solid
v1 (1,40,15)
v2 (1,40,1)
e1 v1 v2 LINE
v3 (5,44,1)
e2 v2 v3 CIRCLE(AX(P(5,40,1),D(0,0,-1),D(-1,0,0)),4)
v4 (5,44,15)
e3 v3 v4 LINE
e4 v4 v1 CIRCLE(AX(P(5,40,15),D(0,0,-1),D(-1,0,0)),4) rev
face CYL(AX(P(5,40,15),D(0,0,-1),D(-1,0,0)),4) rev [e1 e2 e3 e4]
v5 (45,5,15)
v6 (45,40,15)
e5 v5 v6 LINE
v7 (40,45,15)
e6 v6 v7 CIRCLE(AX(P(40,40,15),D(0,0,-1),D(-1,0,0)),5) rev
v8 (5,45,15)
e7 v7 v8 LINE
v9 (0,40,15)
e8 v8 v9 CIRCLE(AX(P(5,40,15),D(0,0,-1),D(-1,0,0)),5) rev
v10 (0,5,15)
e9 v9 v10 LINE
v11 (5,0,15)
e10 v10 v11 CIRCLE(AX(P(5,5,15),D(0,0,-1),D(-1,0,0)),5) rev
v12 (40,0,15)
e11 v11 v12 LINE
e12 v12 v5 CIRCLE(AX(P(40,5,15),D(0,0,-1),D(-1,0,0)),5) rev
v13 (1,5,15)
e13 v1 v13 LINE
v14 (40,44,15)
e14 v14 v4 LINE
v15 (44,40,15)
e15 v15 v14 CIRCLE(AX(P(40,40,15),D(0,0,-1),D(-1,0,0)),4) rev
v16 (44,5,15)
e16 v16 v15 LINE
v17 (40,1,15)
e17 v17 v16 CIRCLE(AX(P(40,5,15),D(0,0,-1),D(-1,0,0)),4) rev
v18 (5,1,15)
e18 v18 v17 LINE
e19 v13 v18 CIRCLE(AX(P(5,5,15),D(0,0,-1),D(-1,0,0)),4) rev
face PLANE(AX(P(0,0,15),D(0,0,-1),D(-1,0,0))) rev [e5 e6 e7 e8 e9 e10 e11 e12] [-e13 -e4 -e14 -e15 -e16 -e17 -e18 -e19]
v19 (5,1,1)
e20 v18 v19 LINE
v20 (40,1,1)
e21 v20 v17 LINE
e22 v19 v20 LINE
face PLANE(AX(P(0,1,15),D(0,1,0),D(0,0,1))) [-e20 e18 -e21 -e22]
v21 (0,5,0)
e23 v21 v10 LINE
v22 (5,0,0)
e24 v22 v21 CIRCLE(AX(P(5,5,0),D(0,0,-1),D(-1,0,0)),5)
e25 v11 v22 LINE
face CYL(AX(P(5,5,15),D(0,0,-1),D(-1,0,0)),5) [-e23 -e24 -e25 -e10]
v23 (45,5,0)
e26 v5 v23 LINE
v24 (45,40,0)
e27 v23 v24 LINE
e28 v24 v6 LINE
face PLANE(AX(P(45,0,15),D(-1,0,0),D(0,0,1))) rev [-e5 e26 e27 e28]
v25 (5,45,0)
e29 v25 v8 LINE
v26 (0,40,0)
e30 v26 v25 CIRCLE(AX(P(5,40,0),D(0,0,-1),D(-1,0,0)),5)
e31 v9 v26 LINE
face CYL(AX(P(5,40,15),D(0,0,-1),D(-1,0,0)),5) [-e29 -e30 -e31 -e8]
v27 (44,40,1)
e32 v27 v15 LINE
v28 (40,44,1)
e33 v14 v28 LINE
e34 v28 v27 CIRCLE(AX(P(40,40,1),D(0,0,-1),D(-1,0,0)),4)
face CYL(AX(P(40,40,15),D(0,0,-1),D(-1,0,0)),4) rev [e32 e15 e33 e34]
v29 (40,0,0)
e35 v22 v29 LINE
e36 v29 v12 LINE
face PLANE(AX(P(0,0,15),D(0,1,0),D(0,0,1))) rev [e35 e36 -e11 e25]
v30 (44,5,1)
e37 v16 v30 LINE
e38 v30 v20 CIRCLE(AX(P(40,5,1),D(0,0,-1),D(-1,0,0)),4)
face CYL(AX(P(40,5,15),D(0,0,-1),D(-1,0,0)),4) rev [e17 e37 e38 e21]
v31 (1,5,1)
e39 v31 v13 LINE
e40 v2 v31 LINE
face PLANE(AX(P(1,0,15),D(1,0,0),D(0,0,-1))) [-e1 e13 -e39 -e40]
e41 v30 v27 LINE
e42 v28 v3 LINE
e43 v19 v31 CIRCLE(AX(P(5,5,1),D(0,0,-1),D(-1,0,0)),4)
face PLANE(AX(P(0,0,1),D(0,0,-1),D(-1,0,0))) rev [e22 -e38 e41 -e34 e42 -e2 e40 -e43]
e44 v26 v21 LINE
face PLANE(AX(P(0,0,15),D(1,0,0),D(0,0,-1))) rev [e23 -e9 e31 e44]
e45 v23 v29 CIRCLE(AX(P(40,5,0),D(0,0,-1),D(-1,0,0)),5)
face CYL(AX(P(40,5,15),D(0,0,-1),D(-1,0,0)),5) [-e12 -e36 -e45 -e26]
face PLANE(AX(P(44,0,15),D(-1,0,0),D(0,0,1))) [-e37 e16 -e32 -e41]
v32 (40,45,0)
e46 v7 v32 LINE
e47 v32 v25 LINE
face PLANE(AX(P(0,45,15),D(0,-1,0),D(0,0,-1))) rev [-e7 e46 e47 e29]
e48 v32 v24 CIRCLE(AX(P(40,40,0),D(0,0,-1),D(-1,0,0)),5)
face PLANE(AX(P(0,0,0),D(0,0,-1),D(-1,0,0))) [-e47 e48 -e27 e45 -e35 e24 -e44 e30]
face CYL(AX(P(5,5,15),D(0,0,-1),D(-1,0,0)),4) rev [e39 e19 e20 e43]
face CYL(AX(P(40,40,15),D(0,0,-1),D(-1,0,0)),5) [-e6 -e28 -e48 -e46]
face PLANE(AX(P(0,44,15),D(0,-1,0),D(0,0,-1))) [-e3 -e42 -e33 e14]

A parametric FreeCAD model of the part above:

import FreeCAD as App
import Part
import Sketcher
Q = App.Units.Quantity


def edges_at(feature, points):
    """Names of the edges that pass closest to the given points."""
    edges = feature.Shape.Edges
    near = lambda p: min(range(len(edges)), key=lambda i: edges[i].distToShape(Part.Vertex(*p))[0])
    return sorted({f"Edge{near(p) + 1}" for p in points})


def faces_at(feature, points):
    """Names of the faces that lie closest to the given points."""
    faces = feature.Shape.Faces
    near = lambda p: min(range(len(faces)), key=lambda i: faces[i].distToShape(Part.Vertex(*p))[0])
    return sorted({f"Face{near(p) + 1}" for p in points})


def add_polygon(sketch, points):
    """Adds a closed chain of lines whose ends are joined by coincident constraints."""
    first, n = sketch.GeometryCount, len(points)
    for a, b in zip(points, points[1:] + points[:1]):
        sketch.addGeometry(Part.LineSegment(App.Vector(*a, 0), App.Vector(*b, 0)), False)
    for i in range(n):
        sketch.addConstraint(Sketcher.Constraint("Coincident", first + i, 2, first + (i + 1) % n, 1))

doc = App.newDocument("Part")
body = doc.addObject("PartDesign::Body", "Body")

# Sketch on XY plane
sketch1 = body.newObject("Sketcher::SketchObject", "Sketch")
sketch1.AttachmentSupport = (doc.getObject("XY_Plane"), [""])
sketch1.MapMode = "FlatFace"
add_polygon(sketch1, [(0, 45), (0, 0), (45, 0), (45, 45)])  # lines 0-3
sketch1.addConstraint(Sketcher.Constraint("Vertical", 0))
sketch1.addConstraint(Sketcher.Constraint("Horizontal", 1))
sketch1.addConstraint(Sketcher.Constraint("Vertical", 2))
sketch1.addConstraint(Sketcher.Constraint("Horizontal", 3))
sketch1.addConstraint(Sketcher.Constraint("Coincident", 0, 2, -1, 1))
sketch1.addConstraint(Sketcher.Constraint("Equal", 3, 0))
sketch1.addConstraint(Sketcher.Constraint("DistanceX", 1, 1, 1, 2, Q("45 mm")))
pad1 = body.newObject("PartDesign::Pad", "Pad")
pad1.Profile = sketch1
pad1.Length = 15
doc.recompute()

fillet = body.newObject("PartDesign::Fillet", "Fillet")
fillet.Base = (pad1, edges_at(pad1, [
    (0, 45, 7.5),
    (45, 45, 7.5),
    (45, 0, 7.5),
    (0, 0, 7.5),
]))
fillet.Radius = 5
doc.recompute()

thickness = body.newObject("PartDesign::Thickness", "Thickness")
thickness.Base = (fillet, faces_at(fillet, [(22.5, 22.5, 15)]))
thickness.Value = 1
thickness.Reversed = True
thickness.Join = "Intersection"

doc.recompute()
